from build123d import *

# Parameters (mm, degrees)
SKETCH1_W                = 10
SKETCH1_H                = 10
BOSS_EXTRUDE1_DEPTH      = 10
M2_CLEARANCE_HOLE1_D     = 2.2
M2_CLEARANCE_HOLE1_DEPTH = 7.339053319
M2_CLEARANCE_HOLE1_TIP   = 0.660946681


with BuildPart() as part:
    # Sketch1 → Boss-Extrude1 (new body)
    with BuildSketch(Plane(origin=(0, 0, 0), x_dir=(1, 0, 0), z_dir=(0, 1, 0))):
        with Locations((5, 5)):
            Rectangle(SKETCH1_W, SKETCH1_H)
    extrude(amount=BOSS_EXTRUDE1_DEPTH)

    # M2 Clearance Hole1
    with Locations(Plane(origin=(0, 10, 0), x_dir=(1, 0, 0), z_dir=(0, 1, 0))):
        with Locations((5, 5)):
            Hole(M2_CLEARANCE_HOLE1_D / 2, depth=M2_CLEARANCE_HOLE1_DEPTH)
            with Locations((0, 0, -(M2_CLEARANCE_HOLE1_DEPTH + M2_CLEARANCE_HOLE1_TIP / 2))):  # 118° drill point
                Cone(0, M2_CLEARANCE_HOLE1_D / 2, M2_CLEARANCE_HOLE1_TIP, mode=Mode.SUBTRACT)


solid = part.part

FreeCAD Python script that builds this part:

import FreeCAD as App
import Part
import Sketcher
from FreeCAD import Vector

doc = App.newDocument("Part")
body = doc.addObject("PartDesign::Body", "Body")

# Sketch on XZ plane
sketch1 = body.newObject("Sketcher::SketchObject", "Sketch")
sketch1.AttachmentSupport = (doc.getObject("XZ_Plane"), [""])
sketch1.MapMode = "FlatFace"
sketch1.addGeometry(Part.LineSegment(Vector(0, -10, 0), Vector(0, 0, 0)), False)
sketch1.addGeometry(Part.LineSegment(Vector(0, 0, 0), Vector(10, 0, 0)), False)
sketch1.addGeometry(Part.LineSegment(Vector(10, 0, 0), Vector(10, -10, 0)), False)
sketch1.addGeometry(Part.LineSegment(Vector(10, -10, 0), Vector(0, -10, 0)), False)
sketch1.addConstraint(Sketcher.Constraint("Coincident", 0, 2, 1, 1))
sketch1.addConstraint(Sketcher.Constraint("Coincident", 1, 2, 2, 1))
sketch1.addConstraint(Sketcher.Constraint("Coincident", 2, 2, 3, 1))
sketch1.addConstraint(Sketcher.Constraint("Coincident", 3, 2, 0, 1))
sketch1.addConstraint(Sketcher.Constraint("Vertical", 0))
sketch1.addConstraint(Sketcher.Constraint("Horizontal", 1))
sketch1.addConstraint(Sketcher.Constraint("Vertical", 2))
sketch1.addConstraint(Sketcher.Constraint("Horizontal", 3))
sketch1.addConstraint(Sketcher.Constraint("Coincident", 0, 2, -1, 1))
sketch1.addConstraint(Sketcher.Constraint("Equal", 3, 0))
sketch1.addConstraint(Sketcher.Constraint("DistanceX", 1, 1, 1, 2, 10.0))
pad1 = body.newObject("PartDesign::Pad", "Pad")
pad1.Profile = sketch1
pad1.Length = 10
pad1.Reversed = True

# Sketch on XZ plane
sketch2 = body.newObject("Sketcher::SketchObject", "Sketch001")
sketch2.AttachmentSupport = (doc.getObject("XZ_Plane"), [""])
sketch2.MapMode = "FlatFace"
sketch2.AttachmentOffset = App.Placement(Vector(0, 0, -10), App.Rotation())
sketch2.addGeometry(Part.Circle(Vector(5, -5, 0), Vector(0, 0, 1), 1.1), False)
sketch2.addConstraint(Sketcher.Constraint("Diameter", 0, 2.2))
sketch2.addConstraint(Sketcher.Constraint("DistanceX", -1, 1, 0, 3, 5.0))
sketch2.addConstraint(Sketcher.Constraint("DistanceY", 0, 3, -1, 1, 5.0))
doc.recompute()
hole = body.newObject("PartDesign::Hole", "Hole")
hole.Profile = sketch2
hole.ThreadType = "None"
hole.Diameter = 2.2
hole.DepthType = "Dimension"
hole.Depth = 7.339053
hole.DrillPoint = "Angled"
hole.DrillPointAngle = 118
hole.Reversed = True

doc.recompute()
